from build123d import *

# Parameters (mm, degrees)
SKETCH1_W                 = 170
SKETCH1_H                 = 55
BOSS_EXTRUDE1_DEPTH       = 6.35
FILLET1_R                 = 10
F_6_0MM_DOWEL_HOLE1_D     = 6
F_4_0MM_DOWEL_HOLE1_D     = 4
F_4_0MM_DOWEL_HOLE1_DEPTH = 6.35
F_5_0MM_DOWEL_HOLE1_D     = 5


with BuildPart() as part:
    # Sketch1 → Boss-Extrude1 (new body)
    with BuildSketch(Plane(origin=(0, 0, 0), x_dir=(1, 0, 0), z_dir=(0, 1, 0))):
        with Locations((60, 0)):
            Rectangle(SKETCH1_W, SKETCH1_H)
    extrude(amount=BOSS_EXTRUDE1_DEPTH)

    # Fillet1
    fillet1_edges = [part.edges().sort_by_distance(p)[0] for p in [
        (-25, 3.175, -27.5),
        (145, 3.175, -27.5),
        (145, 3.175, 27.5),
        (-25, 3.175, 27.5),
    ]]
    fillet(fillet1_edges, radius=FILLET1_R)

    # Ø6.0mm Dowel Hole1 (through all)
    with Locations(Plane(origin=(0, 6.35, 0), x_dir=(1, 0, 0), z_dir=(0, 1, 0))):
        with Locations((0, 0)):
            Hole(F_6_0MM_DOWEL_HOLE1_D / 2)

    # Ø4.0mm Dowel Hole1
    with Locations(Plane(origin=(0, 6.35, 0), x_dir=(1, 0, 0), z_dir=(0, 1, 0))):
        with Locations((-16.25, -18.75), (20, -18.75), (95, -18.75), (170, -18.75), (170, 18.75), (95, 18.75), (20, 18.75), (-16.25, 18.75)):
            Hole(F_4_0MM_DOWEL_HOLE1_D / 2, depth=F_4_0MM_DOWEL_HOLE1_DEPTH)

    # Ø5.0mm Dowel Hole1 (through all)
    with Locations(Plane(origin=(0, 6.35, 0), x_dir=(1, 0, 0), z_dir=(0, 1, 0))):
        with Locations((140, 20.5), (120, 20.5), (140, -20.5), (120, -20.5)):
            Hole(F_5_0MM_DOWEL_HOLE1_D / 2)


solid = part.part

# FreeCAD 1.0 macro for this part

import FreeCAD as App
import Part
import Sketcher

V = App.Vector


def edges_at(feature, points):
    """Names of the edges that pass closest to the given points."""
    edges = feature.Shape.Edges
    near = lambda p: min(range(len(edges)), key=lambda i: edges[i].distToShape(Part.Vertex(*p))[0])
    return sorted({f"Edge{near(p) + 1}" for p in points})

doc = App.newDocument("Part")
body = doc.addObject("PartDesign::Body", "Body")

# Sketch on XZ plane
sketch1 = doc.addObject("Sketcher::SketchObject", "Sketch")
body.addObject(sketch1)
sketch1.AttachmentSupport = (doc.XZ_Plane, [""])
sketch1.MapMode = "FlatFace"
sketch1.addGeometry([
    Part.LineSegment(V(-25, -28, 0), V(-25, 28, 0)),
    Part.LineSegment(V(-25, 28, 0), V(145, 28, 0)),
    Part.LineSegment(V(145, 28, 0), V(145, -28, 0)),
    Part.LineSegment(V(145, -28, 0), V(-25, -28, 0)),
], False)
sketch1.addConstraint([
    Sketcher.Constraint("Coincident", 0, 2, 1, 1),
    Sketcher.Constraint("Coincident", 1, 2, 2, 1),
    Sketcher.Constraint("Coincident", 2, 2, 3, 1),
    Sketcher.Constraint("Coincident", 3, 2, 0, 1),
    Sketcher.Constraint("Vertical", 0),
    Sketcher.Constraint("Horizontal", 1),
    Sketcher.Constraint("Vertical", 2),
    Sketcher.Constraint("Horizontal", 3),
    Sketcher.Constraint("DistanceX", 1, 1, 1, 2, 170.0),
    Sketcher.Constraint("DistanceY", 0, 1, 0, 2, 55.0),
    Sketcher.Constraint("DistanceX", 0, 2, -1, 1, 25.0),
    Sketcher.Constraint("DistanceY", -1, 1, 0, 2, 27.5),
])
pad1 = doc.addObject("PartDesign::Pad", "Pad")
body.addObject(pad1)
pad1.Profile = sketch1
pad1.Length = 6.35
pad1.Reversed = True
doc.recompute()

fillet = doc.addObject("PartDesign::Fillet", "Fillet")
body.addObject(fillet)
fillet.Base = (pad1, edges_at(pad1, [
    (-25, 3.175, -27.5),
    (145, 3.175, -27.5),
    (145, 3.175, 27.5),
    (-25, 3.175, 27.5),
]))
fillet.Radius = 10

# Sketch on XZ plane
sketch2 = doc.addObject("Sketcher::SketchObject", "Sketch001")
body.addObject(sketch2)
sketch2.AttachmentSupport = (doc.XZ_Plane, [""])
sketch2.MapMode = "FlatFace"
sketch2.AttachmentOffset = App.Placement(V(0, 0, -6.35), App.Rotation())
sketch2.addGeometry(Part.Circle(V(0, 0, 0), V(0, 0, 1), 3), False)
sketch2.addConstraint([
    Sketcher.Constraint("Coincident", 0, 3, -1, 1),
    Sketcher.Constraint("Diameter", 0, 6.0),
])
doc.recompute()
hole = doc.addObject("PartDesign::Hole", "Hole")
body.addObject(hole)
hole.Profile = sketch2
hole.ThreadType = "None"
hole.Diameter = 6
hole.DepthType = "ThroughAll"
hole.Reversed = True

# Sketch on XZ plane
sketch3 = doc.addObject("Sketcher::SketchObject", "Sketch002")
body.addObject(sketch3)
sketch3.AttachmentSupport = (doc.XZ_Plane, [""])
sketch3.MapMode = "FlatFace"
sketch3.AttachmentOffset = App.Placement(V(0, 0, -6.35), App.Rotation())
sketch3.addGeometry([
    Part.Circle(V(-16.2, 18.8, 0), V(0, 0, 1), 2),  # 0
    Part.Circle(V(20, 18.8, 0), V(0, 0, 1), 2),  # 1
    Part.Circle(V(95, 18.8, 0), V(0, 0, 1), 2),  # 2
    Part.Circle(V(170, 18.8, 0), V(0, 0, 1), 2),  # 3
    Part.Circle(V(170, -18.8, 0), V(0, 0, 1), 2),  # 4
    Part.Circle(V(95, -18.8, 0), V(0, 0, 1), 2),  # 5
    Part.Circle(V(20, -18.8, 0), V(0, 0, 1), 2),  # 6
    Part.Circle(V(-16.2, -18.8, 0), V(0, 0, 1), 2),  # 7
], False)
sketch3.addConstraint([
    Sketcher.Constraint("Equal", 0, 1),
    Sketcher.Constraint("Equal", 1, 2),
    Sketcher.Constraint("Equal", 2, 3),
    Sketcher.Constraint("Equal", 3, 4),
    Sketcher.Constraint("Equal", 4, 5),
    Sketcher.Constraint("Equal", 5, 6),
    Sketcher.Constraint("Equal", 6, 7),
    Sketcher.Constraint("Symmetric", 3, 3, 4, 3, -1),
    Sketcher.Constraint("Symmetric", 2, 3, 5, 3, -1),
    Sketcher.Constraint("Symmetric", 1, 3, 6, 3, -1),
    Sketcher.Constraint("Symmetric", 0, 3, 7, 3, -1),
    Sketcher.Constraint("Horizontal", 0, 3, 1, 3),
    Sketcher.Constraint("Horizontal", 1, 3, 2, 3),
    Sketcher.Constraint("Horizontal", 2, 3, 3, 3),
    Sketcher.Constraint("Diameter", 0, 4.0),
    Sketcher.Constraint("DistanceX", -1, 1, 1, 3, 20.0),
    Sketcher.Constraint("DistanceX", -1, 1, 2, 3, 95.0),
    Sketcher.Constraint("DistanceX", -1, 1, 3, 3, 170.0),
    Sketcher.Constraint("DistanceY", 4, 3, 3, 3, 37.5),
    Sketcher.Constraint("DistanceX", 0, 3, -1, 1, 16.25),
])
doc.recompute()
hole2 = doc.addObject("PartDesign::Hole", "Hole001")
body.addObject(hole2)
hole2.Profile = sketch3
hole2.ThreadType = "None"
hole2.Diameter = 4
hole2.DepthType = "Dimension"
hole2.Depth = 6.35
hole2.DrillPoint = "Flat"
hole2.Reversed = True

# Sketch on XZ plane
sketch4 = doc.addObject("Sketcher::SketchObject", "Sketch003")
body.addObject(sketch4)
sketch4.AttachmentSupport = (doc.XZ_Plane, [""])
sketch4.MapMode = "FlatFace"
sketch4.AttachmentOffset = App.Placement(V(0, 0, -6.35), App.Rotation())
sketch4.addGeometry([
    Part.Circle(V(140, -20.5, 0), V(0, 0, 1), 2.5),
    Part.Circle(V(120, -20.5, 0), V(0, 0, 1), 2.5),
    Part.Circle(V(140, 20.5, 0), V(0, 0, 1), 2.5),
    Part.Circle(V(120, 20.5, 0), V(0, 0, 1), 2.5),
], False)
sketch4.addConstraint([
    Sketcher.Constraint("Equal", 0, 1),
    Sketcher.Constraint("Equal", 1, 2),
    Sketcher.Constraint("Equal", 2, 3),
    Sketcher.Constraint("Symmetric", 0, 3, 2, 3, -1),
    Sketcher.Constraint("Symmetric", 1, 3, 3, 3, -1),
    Sketcher.Constraint("Horizontal", 0, 3, 1, 3),
    Sketcher.Constraint("Diameter", 0, 5.0),
    Sketcher.Constraint("DistanceX", -1, 1, 0, 3, 140.0),
    Sketcher.Constraint("DistanceX", -1, 1, 1, 3, 120.0),
    Sketcher.Constraint("DistanceY", 0, 3, 2, 3, 41.0),
])
doc.recompute()
hole3 = doc.addObject("PartDesign::Hole", "Hole002")
body.addObject(hole3)
hole3.Profile = sketch4
hole3.ThreadType = "None"
hole3.Diameter = 5
hole3.DepthType = "ThroughAll"
hole3.Reversed = True

doc.recompute()
